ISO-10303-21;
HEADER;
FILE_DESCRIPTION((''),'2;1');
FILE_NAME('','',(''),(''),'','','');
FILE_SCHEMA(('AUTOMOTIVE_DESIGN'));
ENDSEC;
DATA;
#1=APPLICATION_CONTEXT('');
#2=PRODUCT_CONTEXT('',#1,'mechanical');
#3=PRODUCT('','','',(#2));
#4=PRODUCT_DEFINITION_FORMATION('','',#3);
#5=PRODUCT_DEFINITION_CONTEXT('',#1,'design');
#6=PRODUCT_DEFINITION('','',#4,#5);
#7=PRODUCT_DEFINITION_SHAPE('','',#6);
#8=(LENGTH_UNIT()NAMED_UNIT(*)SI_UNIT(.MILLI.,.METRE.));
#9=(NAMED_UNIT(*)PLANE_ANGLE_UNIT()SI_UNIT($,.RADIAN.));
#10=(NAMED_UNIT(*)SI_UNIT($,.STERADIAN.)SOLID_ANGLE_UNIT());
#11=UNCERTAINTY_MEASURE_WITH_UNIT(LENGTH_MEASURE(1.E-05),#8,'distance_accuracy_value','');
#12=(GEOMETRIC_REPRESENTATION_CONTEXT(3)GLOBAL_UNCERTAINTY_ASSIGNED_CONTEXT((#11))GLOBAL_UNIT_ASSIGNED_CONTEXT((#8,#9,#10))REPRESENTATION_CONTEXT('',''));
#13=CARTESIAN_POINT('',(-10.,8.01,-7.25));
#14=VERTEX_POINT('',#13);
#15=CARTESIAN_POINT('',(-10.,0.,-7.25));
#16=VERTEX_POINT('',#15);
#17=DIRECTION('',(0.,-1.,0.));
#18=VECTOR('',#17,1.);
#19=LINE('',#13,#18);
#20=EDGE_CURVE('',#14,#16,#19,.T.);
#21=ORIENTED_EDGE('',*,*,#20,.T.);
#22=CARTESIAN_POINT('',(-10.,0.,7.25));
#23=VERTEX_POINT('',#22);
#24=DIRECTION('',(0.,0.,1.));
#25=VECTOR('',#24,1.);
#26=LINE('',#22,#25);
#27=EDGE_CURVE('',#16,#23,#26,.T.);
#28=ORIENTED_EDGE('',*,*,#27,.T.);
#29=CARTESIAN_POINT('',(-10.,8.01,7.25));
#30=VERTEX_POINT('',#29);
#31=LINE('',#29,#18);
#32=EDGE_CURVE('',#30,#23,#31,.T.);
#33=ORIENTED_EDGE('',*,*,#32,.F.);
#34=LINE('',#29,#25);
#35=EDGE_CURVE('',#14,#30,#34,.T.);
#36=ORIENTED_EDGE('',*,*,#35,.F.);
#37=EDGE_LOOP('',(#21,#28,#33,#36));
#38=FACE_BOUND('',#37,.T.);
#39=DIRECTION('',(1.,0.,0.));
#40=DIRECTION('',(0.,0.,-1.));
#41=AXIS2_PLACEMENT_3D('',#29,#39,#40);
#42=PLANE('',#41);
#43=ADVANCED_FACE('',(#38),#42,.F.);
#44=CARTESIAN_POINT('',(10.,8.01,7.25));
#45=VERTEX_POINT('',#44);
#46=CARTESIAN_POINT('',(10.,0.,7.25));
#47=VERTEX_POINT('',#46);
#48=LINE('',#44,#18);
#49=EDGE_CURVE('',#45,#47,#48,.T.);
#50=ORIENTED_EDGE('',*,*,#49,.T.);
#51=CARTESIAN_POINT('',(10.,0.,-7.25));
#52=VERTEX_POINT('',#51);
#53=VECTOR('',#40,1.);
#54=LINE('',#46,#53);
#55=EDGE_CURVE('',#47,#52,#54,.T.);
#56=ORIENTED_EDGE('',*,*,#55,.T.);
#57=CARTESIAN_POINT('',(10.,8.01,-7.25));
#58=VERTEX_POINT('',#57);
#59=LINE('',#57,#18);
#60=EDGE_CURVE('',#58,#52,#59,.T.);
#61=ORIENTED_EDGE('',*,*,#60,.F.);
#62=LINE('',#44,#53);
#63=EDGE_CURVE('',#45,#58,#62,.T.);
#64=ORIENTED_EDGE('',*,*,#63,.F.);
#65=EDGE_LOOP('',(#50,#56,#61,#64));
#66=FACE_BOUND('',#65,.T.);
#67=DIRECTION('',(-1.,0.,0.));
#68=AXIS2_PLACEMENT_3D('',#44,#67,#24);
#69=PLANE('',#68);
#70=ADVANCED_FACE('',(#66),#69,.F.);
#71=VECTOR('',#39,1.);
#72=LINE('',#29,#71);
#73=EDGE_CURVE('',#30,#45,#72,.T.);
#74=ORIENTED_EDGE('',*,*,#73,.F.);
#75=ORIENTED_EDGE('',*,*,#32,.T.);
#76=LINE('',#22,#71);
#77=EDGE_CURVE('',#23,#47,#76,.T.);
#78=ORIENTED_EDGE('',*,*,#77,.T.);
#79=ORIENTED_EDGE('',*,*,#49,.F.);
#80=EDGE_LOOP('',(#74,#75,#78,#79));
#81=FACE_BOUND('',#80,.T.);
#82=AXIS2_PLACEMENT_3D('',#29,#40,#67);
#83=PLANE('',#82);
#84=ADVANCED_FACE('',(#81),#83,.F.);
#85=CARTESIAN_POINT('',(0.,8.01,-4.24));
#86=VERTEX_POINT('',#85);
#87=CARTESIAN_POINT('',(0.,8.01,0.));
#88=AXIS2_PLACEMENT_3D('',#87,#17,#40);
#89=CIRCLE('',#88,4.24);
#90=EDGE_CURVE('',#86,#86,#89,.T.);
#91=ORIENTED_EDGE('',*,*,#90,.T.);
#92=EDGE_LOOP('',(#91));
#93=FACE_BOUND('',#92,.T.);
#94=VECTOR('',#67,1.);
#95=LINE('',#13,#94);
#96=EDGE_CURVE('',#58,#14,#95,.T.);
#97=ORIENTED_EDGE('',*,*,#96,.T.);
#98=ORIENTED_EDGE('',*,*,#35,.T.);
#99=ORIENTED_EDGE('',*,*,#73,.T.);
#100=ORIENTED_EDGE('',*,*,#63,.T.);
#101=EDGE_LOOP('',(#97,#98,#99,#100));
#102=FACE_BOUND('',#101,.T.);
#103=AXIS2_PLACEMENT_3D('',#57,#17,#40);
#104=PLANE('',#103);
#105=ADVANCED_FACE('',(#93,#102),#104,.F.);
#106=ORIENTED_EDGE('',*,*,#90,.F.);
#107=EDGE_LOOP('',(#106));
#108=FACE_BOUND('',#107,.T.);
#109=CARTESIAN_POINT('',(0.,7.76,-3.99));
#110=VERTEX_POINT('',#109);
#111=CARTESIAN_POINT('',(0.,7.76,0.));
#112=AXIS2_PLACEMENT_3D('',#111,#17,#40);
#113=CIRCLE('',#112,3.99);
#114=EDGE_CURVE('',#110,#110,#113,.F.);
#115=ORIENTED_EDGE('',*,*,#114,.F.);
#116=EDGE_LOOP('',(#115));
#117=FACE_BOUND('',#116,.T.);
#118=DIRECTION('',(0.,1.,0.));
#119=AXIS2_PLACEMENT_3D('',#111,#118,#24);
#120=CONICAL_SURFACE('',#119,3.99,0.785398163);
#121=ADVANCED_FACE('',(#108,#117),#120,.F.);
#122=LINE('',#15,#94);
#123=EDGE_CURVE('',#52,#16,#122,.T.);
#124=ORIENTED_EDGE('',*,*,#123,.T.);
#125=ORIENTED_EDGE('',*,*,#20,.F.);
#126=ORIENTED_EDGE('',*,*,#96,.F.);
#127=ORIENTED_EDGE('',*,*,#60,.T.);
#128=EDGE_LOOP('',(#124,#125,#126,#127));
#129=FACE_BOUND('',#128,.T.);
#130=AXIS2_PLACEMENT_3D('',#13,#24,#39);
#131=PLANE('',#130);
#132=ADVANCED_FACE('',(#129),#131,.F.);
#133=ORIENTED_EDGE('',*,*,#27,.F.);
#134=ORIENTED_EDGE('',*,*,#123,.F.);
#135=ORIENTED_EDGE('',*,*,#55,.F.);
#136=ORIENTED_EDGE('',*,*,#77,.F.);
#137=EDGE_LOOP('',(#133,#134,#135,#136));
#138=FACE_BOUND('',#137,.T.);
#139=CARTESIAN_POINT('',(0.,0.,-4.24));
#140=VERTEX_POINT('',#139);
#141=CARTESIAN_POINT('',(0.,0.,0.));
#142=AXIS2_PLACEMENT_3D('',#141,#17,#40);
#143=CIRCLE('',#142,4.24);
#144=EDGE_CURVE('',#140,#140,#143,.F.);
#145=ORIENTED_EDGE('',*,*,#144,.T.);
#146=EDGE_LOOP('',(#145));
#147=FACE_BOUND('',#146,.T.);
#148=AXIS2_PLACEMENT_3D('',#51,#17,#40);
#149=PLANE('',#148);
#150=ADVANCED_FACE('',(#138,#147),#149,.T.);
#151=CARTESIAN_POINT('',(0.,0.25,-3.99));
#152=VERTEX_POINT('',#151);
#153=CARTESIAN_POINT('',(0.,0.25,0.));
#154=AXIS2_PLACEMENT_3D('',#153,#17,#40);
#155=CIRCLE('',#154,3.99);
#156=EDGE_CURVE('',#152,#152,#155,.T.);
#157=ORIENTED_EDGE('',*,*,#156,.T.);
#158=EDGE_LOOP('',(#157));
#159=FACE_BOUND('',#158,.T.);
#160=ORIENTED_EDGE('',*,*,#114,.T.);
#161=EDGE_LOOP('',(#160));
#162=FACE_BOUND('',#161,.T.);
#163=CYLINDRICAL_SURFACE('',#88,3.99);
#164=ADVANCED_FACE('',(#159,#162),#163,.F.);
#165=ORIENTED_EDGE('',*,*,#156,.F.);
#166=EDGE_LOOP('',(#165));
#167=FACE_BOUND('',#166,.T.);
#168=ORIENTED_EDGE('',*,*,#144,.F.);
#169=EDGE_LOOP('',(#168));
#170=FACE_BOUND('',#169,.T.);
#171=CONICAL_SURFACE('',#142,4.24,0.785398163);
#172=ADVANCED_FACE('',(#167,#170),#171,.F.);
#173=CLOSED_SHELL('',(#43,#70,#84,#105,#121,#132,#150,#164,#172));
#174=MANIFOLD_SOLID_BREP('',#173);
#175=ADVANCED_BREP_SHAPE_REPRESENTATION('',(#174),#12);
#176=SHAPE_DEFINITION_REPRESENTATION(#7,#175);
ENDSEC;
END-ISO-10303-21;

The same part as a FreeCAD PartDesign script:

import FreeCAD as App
import Part
import Sketcher
from FreeCAD import Vector
Q = App.Units.Quantity


def edges_at(feature, points):
    """Names of the edges that pass closest to the given points."""
    edges = feature.Shape.Edges
    near = lambda p: min(range(len(edges)), key=lambda i: edges[i].distToShape(Part.Vertex(*p))[0])
    return sorted({f"Edge{near(p) + 1}" for p in points})


def add_polygon(sketch, points):
    """Adds a closed chain of lines whose ends are joined by coincident constraints."""
    first, n = sketch.GeometryCount, len(points)
    for a, b in zip(points, points[1:] + points[:1]):
        sketch.addGeometry(Part.LineSegment(App.Vector(*a, 0), App.Vector(*b, 0)), False)
    for i in range(n):
        sketch.addConstraint(Sketcher.Constraint("Coincident", first + i, 2, first + (i + 1) % n, 1))

doc = App.newDocument("Part")
body = doc.addObject("PartDesign::Body", "Body")

# Sketch on XZ plane
sketch1 = body.newObject("Sketcher::SketchObject", "Sketch")
sketch1.AttachmentSupport = (doc.getObject("XZ_Plane"), [""])
sketch1.MapMode = "FlatFace"
add_polygon(sketch1, [(-10, -7.2), (-10, 7.2), (10, 7.2), (10, -7.2)])  # lines 0-3
sketch1.addGeometry(Part.Circle(Vector(0, 0, 0), Vector(0, 0, 1), 4), False)  # 4
sketch1.addConstraint(Sketcher.Constraint("Vertical", 0))
sketch1.addConstraint(Sketcher.Constraint("Horizontal", 1))
sketch1.addConstraint(Sketcher.Constraint("Vertical", 2))
sketch1.addConstraint(Sketcher.Constraint("Horizontal", 3))
sketch1.addConstraint(Sketcher.Constraint("Coincident", 4, 3, -1, 1))
sketch1.addConstraint(Sketcher.Constraint("Symmetric", 0, 2, 2, 2, -1, 1))
sketch1.addConstraint(Sketcher.Constraint("Diameter", 4, Q("7.98 mm")))
sketch1.addConstraint(Sketcher.Constraint("DistanceX", 1, 1, 1, 2, Q("20 mm")))
sketch1.addConstraint(Sketcher.Constraint("DistanceY", 0, 1, 0, 2, Q("14.5 mm")))
pad1 = body.newObject("PartDesign::Pad", "Pad")
pad1.Profile = sketch1
pad1.Length = 8.01
pad1.Reversed = True
doc.recompute()

chamfer = body.newObject("PartDesign::Chamfer", "Chamfer")
chamfer.Base = (pad1, edges_at(pad1, [(0, 0, -3.99), (0, 8.01, -3.99)]))
chamfer.Size = 0.25

doc.recompute()
